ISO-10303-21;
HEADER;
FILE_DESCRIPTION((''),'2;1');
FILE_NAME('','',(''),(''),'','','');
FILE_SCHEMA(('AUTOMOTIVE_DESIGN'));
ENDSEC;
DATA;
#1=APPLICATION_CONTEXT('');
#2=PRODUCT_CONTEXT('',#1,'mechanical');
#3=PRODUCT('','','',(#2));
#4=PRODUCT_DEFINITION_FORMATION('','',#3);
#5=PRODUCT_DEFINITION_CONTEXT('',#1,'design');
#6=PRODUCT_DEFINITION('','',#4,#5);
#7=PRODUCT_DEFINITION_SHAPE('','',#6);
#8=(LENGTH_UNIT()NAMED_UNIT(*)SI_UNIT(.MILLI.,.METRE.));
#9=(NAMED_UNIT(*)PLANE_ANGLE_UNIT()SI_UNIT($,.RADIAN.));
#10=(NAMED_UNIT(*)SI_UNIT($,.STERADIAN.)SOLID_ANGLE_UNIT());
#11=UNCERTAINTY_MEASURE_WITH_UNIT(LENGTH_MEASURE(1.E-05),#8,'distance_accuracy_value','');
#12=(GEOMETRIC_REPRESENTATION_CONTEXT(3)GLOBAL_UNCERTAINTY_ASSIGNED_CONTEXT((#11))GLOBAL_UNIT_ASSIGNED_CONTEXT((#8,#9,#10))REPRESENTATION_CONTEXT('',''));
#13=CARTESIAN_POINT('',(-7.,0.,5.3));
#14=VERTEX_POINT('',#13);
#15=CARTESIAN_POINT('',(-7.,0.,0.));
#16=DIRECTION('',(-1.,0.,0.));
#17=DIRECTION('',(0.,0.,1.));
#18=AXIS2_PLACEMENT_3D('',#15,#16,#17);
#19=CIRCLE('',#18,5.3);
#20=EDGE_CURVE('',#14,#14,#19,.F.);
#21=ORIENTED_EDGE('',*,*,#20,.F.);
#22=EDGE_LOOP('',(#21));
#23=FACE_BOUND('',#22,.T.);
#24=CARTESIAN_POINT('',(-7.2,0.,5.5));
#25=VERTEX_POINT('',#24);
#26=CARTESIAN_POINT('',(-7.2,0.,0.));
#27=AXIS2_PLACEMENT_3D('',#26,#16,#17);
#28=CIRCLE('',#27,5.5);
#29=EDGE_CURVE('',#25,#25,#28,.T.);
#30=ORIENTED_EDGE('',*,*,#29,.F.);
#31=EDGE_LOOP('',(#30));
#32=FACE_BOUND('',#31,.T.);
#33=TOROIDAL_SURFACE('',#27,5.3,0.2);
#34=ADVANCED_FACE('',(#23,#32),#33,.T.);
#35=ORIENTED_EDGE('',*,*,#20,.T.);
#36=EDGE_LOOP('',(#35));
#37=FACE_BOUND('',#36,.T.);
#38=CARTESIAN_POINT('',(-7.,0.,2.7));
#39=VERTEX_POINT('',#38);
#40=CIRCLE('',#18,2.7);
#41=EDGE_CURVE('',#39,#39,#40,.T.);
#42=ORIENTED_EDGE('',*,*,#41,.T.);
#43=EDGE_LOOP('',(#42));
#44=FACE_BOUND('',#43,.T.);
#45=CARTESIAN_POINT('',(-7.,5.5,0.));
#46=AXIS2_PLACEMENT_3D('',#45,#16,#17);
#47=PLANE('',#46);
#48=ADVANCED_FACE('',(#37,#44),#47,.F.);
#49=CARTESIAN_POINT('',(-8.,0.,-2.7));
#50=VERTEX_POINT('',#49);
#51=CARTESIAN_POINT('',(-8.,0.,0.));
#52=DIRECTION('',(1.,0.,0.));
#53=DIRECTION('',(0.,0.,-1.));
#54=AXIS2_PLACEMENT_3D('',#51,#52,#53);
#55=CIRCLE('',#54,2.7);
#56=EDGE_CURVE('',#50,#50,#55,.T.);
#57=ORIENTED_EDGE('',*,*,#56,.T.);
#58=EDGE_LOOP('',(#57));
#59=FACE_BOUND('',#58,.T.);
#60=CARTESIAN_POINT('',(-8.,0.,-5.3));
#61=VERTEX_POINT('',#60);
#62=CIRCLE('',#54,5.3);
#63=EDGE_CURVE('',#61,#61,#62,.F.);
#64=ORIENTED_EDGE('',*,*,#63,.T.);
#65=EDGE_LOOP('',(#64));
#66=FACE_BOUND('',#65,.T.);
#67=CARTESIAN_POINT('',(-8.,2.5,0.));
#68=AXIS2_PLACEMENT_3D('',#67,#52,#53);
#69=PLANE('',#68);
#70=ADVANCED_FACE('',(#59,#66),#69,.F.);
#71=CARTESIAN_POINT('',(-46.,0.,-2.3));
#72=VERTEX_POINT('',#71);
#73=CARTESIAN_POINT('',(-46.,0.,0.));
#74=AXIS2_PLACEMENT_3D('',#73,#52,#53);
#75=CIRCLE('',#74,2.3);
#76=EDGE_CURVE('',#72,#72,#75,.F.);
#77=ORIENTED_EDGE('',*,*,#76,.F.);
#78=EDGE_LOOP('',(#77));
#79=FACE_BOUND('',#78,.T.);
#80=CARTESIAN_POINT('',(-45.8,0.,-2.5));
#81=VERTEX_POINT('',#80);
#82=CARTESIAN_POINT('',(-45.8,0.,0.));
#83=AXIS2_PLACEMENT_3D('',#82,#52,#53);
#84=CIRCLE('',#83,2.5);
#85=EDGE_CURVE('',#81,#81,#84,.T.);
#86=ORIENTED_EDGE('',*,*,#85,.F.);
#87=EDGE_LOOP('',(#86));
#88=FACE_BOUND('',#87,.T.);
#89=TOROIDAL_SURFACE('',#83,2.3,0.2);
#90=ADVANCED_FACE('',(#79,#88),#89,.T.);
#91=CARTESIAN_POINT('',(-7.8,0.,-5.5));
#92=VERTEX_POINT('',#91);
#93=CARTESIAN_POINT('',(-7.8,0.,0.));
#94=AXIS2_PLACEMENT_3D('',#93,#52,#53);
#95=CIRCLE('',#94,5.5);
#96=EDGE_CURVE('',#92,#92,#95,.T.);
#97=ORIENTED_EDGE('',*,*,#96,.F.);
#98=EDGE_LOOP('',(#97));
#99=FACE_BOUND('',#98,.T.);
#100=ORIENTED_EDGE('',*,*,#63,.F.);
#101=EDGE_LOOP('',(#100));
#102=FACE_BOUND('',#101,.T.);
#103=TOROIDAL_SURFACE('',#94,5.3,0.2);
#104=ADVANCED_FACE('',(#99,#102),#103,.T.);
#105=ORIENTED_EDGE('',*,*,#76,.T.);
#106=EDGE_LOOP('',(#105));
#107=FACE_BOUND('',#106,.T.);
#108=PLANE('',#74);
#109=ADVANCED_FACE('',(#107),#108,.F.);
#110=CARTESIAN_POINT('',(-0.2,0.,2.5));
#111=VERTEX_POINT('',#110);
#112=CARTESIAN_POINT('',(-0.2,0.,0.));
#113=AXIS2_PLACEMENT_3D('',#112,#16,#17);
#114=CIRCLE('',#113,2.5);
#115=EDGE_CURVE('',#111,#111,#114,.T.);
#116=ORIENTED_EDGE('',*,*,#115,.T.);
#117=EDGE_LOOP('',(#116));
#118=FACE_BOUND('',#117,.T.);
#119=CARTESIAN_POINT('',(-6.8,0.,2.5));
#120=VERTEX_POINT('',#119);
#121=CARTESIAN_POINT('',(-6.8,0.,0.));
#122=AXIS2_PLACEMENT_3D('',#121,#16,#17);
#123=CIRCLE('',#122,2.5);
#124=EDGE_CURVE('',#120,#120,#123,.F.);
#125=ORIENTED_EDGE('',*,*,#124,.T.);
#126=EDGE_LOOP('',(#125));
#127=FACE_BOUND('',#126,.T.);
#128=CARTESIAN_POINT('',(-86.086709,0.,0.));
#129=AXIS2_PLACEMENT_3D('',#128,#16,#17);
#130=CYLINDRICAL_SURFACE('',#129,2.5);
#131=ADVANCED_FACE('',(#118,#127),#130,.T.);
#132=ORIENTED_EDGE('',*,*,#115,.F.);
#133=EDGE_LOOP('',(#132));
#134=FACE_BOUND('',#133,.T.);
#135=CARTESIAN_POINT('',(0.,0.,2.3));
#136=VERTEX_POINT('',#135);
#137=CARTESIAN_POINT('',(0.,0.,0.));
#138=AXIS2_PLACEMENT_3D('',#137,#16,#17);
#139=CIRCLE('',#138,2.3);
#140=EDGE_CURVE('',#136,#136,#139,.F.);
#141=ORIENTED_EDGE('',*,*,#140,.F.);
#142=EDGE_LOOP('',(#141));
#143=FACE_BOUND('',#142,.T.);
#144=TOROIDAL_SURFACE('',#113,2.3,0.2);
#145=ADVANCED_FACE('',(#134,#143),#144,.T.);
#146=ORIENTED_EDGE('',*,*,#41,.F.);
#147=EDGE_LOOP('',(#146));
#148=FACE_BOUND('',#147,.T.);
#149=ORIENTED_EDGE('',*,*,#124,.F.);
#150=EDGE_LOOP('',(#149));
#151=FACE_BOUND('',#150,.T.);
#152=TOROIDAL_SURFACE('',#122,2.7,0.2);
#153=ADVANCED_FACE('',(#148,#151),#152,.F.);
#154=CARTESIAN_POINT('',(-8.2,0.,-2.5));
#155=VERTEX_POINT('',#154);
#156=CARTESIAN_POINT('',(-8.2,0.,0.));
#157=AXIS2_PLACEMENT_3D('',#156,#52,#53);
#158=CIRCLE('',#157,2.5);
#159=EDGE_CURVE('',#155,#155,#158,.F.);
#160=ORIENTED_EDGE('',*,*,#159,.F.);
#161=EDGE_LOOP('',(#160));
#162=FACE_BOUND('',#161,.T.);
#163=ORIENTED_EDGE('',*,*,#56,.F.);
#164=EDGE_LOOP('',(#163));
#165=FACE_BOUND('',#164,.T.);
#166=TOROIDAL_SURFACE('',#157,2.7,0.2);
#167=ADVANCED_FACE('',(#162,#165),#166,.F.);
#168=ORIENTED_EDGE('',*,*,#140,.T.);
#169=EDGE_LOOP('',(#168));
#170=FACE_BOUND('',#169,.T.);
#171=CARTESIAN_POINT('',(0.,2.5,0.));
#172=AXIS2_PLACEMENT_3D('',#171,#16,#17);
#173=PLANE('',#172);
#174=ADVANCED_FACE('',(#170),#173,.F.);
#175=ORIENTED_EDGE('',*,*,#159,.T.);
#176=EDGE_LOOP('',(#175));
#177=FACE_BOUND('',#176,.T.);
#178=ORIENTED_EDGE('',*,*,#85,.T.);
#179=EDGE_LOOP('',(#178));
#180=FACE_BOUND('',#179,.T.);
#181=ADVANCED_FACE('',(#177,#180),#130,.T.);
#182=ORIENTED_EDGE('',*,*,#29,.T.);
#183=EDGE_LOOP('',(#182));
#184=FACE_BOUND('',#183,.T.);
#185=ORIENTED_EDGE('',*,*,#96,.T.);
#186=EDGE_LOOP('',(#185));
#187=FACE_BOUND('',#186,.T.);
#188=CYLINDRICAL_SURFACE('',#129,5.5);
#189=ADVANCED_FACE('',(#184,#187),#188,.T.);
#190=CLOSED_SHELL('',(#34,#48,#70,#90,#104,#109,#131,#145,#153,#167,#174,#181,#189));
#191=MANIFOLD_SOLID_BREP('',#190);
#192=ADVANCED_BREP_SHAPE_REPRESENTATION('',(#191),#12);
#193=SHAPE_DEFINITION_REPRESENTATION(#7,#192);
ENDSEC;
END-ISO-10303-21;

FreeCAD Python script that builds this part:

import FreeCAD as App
import Part
import Sketcher


def edges_at(feature, points):
    """Names of the edges that pass closest to the given points."""
    edges = feature.Shape.Edges
    near = lambda p: min(range(len(edges)), key=lambda i: edges[i].distToShape(Part.Vertex(*p))[0])
    return sorted({f"Edge{near(p) + 1}" for p in points})


def add_polygon(sketch, points):
    """Adds a closed chain of lines whose ends are joined by coincident constraints."""
    first, n = sketch.GeometryCount, len(points)
    for a, b in zip(points, points[1:] + points[:1]):
        sketch.addGeometry(Part.LineSegment(App.Vector(*a, 0), App.Vector(*b, 0)), False)
    for i in range(n):
        sketch.addConstraint(Sketcher.Constraint("Coincident", first + i, 2, first + (i + 1) % n, 1))

doc = App.newDocument("Part")
body = doc.addObject("PartDesign::Body", "Body")

sketch1 = body.newObject("Sketcher::SketchObject", "Sketch")
sketch1.AttachmentSupport = (doc.getObject("XY_Plane"), [""])
sketch1.MapMode = "FlatFace"
add_polygon(sketch1, [(-46, 2.5), (-46, 0), (0, 0), (0, 2.5), (-7, 2.5), (-7, 5.5), (-8, 5.5), (-8, 2.5)])
sketch1.addConstraint(Sketcher.Constraint("Vertical", 0))
sketch1.addConstraint(Sketcher.Constraint("Horizontal", 1))
sketch1.addConstraint(Sketcher.Constraint("Vertical", 2))
sketch1.addConstraint(Sketcher.Constraint("Horizontal", 3))
sketch1.addConstraint(Sketcher.Constraint("Vertical", 4))
sketch1.addConstraint(Sketcher.Constraint("Horizontal", 5))
sketch1.addConstraint(Sketcher.Constraint("Vertical", 6))
sketch1.addConstraint(Sketcher.Constraint("Horizontal", 7))
sketch1.addConstraint(Sketcher.Constraint("Coincident", 1, 2, -1, 1))
sketch1.addConstraint(Sketcher.Constraint("Horizontal", 3, 2, 6, 2))
sketch1.addConstraint(Sketcher.Constraint("DistanceX", 1, 1, 1, 2, 46.0))
sketch1.addConstraint(Sketcher.Constraint("DistanceX", 3, 2, 3, 1, 7.0))
sketch1.addConstraint(Sketcher.Constraint("DistanceX", 5, 2, 5, 1, 1.0))
sketch1.addConstraint(Sketcher.Constraint("DistanceY", 4, 1, 4, 2, 3.0))
sketch1.addConstraint(Sketcher.Constraint("DistanceY", 0, 2, 0, 1, 2.5))
revolution = body.newObject("PartDesign::Revolution", "Revolution")
revolution.Profile = sketch1
revolution.ReferenceAxis = (sketch1, ["H_Axis"])
revolution.Angle = 360
doc.recompute()

fillet = body.newObject("PartDesign::Fillet", "Fillet")
fillet.Base = (revolution, edges_at(revolution, [
    (-46, 0, -2.5),
    (-8, 0, -2.5),
    (-8, 0, -5.5),
    (-7, 0, -5.5),
    (-7, 0, -2.5),
    (0, 0, -2.5),
]))
fillet.Radius = 0.2

doc.recompute()
